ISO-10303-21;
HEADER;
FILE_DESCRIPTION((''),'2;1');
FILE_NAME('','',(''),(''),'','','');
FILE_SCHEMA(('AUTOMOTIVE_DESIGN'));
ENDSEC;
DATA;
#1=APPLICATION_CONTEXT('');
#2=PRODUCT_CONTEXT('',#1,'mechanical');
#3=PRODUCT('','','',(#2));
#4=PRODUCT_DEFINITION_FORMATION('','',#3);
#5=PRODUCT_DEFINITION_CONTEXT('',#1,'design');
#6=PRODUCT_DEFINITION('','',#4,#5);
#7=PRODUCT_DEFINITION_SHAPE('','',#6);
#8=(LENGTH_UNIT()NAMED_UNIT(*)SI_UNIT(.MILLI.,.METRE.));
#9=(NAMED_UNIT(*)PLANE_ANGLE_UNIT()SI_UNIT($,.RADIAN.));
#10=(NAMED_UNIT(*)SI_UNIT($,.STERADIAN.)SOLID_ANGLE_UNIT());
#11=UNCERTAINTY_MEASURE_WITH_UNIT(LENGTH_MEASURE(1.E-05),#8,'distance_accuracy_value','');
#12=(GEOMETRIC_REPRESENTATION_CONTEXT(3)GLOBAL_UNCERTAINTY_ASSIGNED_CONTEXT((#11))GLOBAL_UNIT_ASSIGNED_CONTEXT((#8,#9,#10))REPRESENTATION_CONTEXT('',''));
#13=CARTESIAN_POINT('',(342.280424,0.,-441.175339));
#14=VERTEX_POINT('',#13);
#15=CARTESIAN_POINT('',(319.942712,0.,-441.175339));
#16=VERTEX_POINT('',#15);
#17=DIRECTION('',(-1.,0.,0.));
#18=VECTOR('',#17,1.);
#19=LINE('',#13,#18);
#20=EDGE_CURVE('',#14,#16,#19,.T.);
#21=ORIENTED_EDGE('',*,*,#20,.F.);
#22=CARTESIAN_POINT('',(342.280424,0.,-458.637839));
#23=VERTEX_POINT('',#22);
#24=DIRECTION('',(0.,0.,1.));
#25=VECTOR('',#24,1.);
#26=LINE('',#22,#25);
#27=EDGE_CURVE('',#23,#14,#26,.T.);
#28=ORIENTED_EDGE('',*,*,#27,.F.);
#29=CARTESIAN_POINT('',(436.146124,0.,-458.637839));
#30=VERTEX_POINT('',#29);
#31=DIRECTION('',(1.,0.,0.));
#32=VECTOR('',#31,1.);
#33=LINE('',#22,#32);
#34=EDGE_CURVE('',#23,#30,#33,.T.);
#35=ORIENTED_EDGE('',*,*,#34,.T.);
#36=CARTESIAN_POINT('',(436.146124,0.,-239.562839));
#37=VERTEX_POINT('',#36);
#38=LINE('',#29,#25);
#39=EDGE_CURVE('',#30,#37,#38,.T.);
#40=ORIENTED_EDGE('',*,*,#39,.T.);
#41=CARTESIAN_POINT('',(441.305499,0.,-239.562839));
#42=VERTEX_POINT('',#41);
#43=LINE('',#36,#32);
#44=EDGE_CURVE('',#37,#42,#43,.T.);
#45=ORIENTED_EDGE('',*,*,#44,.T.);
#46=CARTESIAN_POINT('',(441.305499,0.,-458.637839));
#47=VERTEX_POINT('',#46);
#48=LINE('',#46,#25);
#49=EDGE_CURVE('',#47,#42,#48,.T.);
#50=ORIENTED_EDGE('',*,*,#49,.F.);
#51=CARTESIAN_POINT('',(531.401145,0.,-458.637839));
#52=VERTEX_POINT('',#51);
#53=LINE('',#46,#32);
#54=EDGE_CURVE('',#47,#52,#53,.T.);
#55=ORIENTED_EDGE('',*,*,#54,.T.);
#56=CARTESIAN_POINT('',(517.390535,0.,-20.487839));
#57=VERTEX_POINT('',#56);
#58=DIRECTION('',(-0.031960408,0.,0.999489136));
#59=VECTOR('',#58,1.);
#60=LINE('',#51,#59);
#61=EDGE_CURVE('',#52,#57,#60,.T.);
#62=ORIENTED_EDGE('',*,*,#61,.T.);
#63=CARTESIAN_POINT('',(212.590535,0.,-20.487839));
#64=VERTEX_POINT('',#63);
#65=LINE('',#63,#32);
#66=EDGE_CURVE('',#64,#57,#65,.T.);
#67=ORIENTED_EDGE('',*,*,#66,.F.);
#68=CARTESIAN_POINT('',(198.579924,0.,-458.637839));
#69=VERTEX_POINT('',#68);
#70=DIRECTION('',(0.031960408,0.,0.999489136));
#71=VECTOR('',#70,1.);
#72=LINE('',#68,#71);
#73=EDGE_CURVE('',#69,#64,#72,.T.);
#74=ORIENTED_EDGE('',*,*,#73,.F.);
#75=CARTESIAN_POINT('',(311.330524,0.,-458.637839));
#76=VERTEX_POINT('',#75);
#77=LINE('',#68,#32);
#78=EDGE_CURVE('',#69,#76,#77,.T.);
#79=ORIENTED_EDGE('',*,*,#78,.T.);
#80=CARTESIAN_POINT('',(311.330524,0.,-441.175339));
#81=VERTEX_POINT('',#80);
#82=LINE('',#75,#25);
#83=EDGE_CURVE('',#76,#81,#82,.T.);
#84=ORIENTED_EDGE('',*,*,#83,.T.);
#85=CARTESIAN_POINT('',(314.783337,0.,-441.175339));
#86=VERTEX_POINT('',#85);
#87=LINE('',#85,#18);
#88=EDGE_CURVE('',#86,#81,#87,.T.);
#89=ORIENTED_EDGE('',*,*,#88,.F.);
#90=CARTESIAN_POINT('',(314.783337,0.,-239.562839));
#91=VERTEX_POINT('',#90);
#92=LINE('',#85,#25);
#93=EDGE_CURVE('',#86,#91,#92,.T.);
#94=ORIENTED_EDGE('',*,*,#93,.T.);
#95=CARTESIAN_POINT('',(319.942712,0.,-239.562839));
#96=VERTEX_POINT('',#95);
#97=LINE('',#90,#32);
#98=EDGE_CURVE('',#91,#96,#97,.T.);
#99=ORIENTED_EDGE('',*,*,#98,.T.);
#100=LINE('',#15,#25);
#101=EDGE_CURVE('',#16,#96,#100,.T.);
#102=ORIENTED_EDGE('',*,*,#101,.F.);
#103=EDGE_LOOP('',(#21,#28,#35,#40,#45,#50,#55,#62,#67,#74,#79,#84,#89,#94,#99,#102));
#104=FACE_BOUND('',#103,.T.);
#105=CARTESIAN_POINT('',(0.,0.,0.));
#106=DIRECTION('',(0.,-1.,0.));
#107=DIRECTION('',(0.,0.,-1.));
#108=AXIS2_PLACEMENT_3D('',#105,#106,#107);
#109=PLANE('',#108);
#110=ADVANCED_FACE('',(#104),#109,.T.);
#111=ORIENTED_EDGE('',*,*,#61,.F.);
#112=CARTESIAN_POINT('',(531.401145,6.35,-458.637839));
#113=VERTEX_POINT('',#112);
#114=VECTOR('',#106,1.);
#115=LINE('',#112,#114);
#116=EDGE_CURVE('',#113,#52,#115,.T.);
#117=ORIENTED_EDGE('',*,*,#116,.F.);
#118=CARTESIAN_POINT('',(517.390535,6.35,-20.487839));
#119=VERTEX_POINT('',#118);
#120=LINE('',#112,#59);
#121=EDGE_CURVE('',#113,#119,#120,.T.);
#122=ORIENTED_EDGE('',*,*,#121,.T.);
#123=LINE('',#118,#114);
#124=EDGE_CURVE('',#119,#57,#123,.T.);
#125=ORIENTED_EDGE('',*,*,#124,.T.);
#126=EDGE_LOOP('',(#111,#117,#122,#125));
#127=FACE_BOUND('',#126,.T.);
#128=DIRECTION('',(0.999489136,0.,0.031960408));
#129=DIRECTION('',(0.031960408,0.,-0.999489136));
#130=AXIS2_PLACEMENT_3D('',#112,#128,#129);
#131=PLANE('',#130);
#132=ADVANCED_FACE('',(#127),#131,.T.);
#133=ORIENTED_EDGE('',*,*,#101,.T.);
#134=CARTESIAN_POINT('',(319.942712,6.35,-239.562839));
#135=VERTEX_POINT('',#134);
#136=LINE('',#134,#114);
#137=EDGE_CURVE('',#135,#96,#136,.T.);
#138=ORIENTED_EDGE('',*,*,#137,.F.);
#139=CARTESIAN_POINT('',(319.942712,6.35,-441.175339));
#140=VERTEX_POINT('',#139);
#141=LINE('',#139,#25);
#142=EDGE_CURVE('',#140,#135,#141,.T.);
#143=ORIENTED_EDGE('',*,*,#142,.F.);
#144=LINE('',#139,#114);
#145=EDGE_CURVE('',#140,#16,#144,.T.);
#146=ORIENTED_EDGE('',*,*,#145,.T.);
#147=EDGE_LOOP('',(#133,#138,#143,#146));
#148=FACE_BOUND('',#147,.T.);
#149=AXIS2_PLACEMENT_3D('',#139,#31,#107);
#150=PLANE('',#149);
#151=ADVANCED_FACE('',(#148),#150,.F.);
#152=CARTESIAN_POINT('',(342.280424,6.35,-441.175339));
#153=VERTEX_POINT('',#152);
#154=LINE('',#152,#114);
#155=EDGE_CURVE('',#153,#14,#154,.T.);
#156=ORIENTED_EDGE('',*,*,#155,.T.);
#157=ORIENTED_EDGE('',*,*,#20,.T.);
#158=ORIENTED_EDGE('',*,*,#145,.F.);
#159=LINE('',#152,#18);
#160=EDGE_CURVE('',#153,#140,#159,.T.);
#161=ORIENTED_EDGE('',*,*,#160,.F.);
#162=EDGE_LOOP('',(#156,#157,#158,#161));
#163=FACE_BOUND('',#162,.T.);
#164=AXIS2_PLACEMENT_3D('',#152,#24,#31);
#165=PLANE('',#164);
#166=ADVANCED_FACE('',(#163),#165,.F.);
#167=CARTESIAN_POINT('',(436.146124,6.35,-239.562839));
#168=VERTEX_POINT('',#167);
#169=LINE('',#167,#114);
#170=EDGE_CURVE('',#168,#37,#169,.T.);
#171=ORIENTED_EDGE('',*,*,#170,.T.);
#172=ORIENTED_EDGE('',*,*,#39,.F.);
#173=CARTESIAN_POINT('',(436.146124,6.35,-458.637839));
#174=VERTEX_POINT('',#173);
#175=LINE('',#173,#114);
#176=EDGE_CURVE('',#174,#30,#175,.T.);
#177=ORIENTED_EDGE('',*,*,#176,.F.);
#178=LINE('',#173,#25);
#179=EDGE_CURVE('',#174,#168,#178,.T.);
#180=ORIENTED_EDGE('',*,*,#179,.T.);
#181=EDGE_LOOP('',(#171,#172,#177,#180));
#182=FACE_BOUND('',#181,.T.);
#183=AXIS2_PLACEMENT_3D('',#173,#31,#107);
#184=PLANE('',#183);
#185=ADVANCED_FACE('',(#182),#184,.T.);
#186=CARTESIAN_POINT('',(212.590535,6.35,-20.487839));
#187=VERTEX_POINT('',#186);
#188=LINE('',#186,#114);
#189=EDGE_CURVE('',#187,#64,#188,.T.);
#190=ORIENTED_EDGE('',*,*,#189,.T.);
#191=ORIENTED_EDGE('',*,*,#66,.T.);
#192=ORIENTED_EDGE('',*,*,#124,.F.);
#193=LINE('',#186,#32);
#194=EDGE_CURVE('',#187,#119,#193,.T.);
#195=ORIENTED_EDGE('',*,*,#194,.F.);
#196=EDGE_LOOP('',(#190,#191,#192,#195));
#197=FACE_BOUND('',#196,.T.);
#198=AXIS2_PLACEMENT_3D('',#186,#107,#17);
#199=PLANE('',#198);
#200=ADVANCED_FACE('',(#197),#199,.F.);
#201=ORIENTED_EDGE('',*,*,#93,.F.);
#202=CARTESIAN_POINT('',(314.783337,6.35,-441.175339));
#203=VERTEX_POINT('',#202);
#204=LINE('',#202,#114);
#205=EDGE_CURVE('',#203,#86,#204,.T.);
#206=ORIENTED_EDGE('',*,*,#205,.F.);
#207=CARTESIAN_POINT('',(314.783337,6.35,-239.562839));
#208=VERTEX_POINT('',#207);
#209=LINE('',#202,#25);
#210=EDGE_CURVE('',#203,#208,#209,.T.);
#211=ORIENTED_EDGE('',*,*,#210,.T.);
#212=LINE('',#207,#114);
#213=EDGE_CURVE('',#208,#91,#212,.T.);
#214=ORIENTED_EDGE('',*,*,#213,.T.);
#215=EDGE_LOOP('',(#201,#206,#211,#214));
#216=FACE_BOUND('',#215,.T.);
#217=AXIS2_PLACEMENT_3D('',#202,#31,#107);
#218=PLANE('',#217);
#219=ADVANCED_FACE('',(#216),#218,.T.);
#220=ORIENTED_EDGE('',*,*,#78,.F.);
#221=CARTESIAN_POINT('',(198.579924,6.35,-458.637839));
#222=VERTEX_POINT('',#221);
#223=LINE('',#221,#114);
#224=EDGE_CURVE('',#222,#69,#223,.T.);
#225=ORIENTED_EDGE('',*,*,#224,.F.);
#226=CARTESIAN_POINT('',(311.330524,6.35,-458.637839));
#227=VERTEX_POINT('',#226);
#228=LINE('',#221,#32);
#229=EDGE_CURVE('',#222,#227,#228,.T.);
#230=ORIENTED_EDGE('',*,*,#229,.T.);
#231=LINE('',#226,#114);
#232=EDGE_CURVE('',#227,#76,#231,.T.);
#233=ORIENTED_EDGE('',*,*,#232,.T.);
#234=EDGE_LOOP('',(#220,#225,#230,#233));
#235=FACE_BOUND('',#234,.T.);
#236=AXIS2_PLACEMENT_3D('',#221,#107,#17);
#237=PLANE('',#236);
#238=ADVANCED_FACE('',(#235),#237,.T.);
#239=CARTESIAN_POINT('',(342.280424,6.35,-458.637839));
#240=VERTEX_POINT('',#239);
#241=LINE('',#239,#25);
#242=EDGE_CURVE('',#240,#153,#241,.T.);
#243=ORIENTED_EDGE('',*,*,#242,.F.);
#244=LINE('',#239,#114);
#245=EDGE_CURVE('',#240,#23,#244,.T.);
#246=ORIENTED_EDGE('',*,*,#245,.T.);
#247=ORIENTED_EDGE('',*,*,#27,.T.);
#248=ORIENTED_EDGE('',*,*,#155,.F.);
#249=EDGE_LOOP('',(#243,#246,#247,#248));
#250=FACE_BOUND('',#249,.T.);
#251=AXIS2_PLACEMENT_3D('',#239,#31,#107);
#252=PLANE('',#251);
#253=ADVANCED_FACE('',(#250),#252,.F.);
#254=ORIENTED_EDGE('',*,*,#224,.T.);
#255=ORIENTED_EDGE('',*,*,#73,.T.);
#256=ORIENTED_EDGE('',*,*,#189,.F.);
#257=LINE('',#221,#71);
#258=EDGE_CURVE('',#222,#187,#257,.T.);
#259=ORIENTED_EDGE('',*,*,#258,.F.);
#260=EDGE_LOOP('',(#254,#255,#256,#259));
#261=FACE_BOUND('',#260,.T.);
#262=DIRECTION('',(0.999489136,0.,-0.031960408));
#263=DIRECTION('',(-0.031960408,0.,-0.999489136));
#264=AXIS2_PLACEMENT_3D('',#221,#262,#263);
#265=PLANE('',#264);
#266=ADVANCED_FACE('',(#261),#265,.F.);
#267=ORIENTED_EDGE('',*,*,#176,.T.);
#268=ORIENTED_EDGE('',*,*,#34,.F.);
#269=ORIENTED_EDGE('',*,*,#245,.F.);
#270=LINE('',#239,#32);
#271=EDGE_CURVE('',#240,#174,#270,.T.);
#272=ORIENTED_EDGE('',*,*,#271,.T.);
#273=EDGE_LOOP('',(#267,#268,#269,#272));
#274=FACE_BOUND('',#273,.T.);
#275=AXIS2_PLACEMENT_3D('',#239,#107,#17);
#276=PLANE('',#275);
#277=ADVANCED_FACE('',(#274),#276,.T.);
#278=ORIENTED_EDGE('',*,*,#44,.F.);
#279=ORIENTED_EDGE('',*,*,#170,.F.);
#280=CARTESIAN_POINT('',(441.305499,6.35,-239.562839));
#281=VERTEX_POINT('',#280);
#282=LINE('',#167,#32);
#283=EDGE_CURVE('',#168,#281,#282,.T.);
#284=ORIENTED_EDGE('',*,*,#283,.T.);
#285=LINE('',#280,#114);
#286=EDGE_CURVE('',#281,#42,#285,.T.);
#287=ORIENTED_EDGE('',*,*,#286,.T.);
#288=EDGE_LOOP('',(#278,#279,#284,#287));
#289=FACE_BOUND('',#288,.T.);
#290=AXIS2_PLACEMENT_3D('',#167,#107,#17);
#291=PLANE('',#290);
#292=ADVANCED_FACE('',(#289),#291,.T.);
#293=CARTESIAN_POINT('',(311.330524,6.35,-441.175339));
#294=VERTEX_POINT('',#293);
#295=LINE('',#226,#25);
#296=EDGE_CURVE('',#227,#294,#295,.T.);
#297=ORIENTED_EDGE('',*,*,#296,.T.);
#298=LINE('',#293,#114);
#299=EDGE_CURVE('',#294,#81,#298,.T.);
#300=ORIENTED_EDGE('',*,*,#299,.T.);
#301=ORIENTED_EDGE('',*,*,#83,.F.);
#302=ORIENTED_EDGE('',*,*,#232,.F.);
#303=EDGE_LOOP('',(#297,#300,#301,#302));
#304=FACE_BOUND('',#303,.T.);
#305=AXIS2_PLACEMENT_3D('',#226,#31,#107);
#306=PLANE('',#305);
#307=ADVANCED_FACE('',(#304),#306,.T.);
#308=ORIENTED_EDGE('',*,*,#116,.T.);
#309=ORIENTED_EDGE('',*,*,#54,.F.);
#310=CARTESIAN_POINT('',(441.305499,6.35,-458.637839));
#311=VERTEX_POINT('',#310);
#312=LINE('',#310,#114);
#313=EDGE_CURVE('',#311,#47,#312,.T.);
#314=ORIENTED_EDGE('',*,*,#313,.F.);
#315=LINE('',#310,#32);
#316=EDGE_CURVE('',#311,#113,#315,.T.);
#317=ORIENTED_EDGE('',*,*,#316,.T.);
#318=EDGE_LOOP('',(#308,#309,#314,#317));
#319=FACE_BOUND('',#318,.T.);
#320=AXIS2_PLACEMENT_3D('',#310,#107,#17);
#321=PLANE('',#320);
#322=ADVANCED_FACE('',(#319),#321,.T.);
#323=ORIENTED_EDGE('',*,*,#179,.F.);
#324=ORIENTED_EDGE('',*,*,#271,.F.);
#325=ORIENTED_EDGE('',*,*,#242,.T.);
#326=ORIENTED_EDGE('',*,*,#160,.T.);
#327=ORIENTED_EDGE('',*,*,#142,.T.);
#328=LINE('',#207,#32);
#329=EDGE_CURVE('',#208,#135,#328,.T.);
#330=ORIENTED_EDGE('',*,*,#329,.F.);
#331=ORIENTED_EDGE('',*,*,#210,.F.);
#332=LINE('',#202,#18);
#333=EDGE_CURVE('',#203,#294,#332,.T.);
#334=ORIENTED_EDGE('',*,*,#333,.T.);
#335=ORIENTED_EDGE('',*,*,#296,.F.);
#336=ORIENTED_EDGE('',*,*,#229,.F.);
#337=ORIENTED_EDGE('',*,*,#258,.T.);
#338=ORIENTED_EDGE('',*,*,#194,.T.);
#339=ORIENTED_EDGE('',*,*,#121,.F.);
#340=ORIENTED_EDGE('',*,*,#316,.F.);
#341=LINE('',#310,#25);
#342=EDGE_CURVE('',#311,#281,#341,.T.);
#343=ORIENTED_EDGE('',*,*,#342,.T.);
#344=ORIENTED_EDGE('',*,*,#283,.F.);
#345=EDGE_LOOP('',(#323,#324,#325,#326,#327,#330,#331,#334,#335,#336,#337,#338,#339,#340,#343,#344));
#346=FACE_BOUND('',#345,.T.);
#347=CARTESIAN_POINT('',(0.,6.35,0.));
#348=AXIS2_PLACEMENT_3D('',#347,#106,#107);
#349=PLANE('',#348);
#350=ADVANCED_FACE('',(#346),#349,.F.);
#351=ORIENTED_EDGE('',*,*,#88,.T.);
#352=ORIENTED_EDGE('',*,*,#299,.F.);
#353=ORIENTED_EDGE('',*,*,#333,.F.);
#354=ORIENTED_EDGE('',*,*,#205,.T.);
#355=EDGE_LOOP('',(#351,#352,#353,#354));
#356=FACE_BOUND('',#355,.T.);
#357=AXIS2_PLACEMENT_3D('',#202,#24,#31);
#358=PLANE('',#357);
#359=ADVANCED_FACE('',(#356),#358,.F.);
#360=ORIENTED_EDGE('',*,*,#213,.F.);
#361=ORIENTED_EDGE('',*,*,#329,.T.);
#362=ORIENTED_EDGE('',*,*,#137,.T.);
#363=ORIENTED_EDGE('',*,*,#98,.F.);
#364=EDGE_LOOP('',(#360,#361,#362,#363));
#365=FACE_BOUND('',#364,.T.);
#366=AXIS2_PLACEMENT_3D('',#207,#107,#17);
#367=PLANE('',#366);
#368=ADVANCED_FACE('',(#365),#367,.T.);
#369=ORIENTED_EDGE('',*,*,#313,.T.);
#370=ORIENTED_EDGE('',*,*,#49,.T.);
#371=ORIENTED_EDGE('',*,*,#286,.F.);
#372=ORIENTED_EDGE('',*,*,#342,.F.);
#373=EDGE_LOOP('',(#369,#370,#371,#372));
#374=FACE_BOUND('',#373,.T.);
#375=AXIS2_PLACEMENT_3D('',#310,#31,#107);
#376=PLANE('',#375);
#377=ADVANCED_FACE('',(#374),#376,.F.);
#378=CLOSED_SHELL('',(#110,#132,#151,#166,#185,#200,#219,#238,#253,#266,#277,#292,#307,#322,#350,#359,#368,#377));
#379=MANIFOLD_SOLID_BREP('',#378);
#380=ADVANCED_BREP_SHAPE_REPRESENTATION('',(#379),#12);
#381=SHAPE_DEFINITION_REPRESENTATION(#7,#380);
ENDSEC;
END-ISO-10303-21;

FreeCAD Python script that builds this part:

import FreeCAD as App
import Part
import Sketcher

V = App.Vector
Q = App.Units.Quantity


def add_polygon(sketch, points):
    """Adds a closed chain of lines whose ends are joined by coincident constraints."""
    first, n = sketch.GeometryCount, len(points)
    for a, b in zip(points, points[1:] + points[:1]):
        sketch.addGeometry(Part.LineSegment(App.Vector(*a, 0), App.Vector(*b, 0)), False)
    for i in range(n):
        sketch.addConstraint(Sketcher.Constraint("Coincident", first + i, 2, first + (i + 1) % n, 1))

doc = App.newDocument("Part")
params = doc.addObject("Spreadsheet::Sheet", "Params")
for row, (alias, value) in enumerate([
    ("sketch1_width", "12 in"),
    ("sketch1_width2", "4.439 in"),
    ("sketch1_width3", "0.203125 in"),
    ("sketch1_height", "8.625 in"),
    ("sketch1_height2", "0.6875 in"),
    ("pad1_length", "0.25 in"),
], start=1):
    params.set(f"A{row}", alias)
    params.set(f"B{row}", "=" + value)
    params.setAlias(f"B{row}", alias)

body = doc.addObject("PartDesign::Body", "Body")

sketch1 = body.newObject("Sketcher::SketchObject", "Sketch")
sketch1.AttachmentSupport = (doc.getObject("XZ_Plane"), [""])
sketch1.MapMode = "FlatFace"
add_polygon(sketch1, [(311.330524, -458.637839), (198.579924, -458.637839), (212.590535, -20.487839), (517.390535, -20.487839), (531.401145, -458.637839), (441.305499, -458.637839), (441.305499, -239.562839), (436.146124, -239.562839), (436.146124, -458.637839), (342.280424, -458.637839), (342.280424, -441.175339), (319.942712, -441.175339), (319.942712, -239.562839), (314.783337, -239.562839), (314.783337, -441.175339), (311.330524, -441.175339)])
sketch1.addConstraint([
    Sketcher.Constraint("Horizontal", 0),
    Sketcher.Constraint("Horizontal", 2),
    Sketcher.Constraint("Horizontal", 4),
    Sketcher.Constraint("Vertical", 5),
    Sketcher.Constraint("Horizontal", 6),
    Sketcher.Constraint("Vertical", 7),
    Sketcher.Constraint("Horizontal", 8),
    Sketcher.Constraint("Vertical", 9),
    Sketcher.Constraint("Horizontal", 10),
    Sketcher.Constraint("Vertical", 11),
    Sketcher.Constraint("Horizontal", 12),
    Sketcher.Constraint("Vertical", 13),
    Sketcher.Constraint("Horizontal", 14),
    Sketcher.Constraint("Vertical", 15),
    Sketcher.Constraint("Horizontal", 0, 2, 3, 2),
    Sketcher.Constraint("Horizontal", 4, 2, 7, 2),
    Sketcher.Constraint("Horizontal", 6, 2, 11, 2),
    Sketcher.Constraint("Horizontal", 10, 2, 13, 2),
    Sketcher.Constraint("Equal", 6, 12),
    Sketcher.Constraint("Equal", 1, 3),
    Sketcher.Constraint("DistanceX", 2, 1, 2, 2, Q("12 in")),
    Sketcher.Constraint("DistanceX", 0, 2, 0, 1, Q("4.439 in")),
    Sketcher.Constraint("DistanceX", 6, 2, 6, 1, Q("0.203125 in")),
    Sketcher.Constraint("DistanceY", 5, 1, 5, 2, Q("8.625 in")),
    Sketcher.Constraint("DistanceY", 9, 1, 9, 2, Q("0.6875 in")),
    Sketcher.Constraint("DistanceY", 0, 2, 1, 2, Q("17.25 in")),
    Sketcher.Constraint("DistanceX", 8, 2, 8, 1, Q("3.6955 in")),
    Sketcher.Constraint("DistanceX", 0, 2, 7, 2, Q("9.353 in")),
    Sketcher.Constraint("DistanceX", -1, 1, 4, 2, 441.305499),
    Sketcher.Constraint("Distance", 1, 438.37395),
    Sketcher.Constraint("DistanceX", 10, 2, 10, 1, 22.337713),
    Sketcher.Constraint("DistanceY", 0, 2, -1, 1, 458.637839),
])
sketch1.setExpression("Constraints[36]", "Params.sketch1_width")
sketch1.setExpression("Constraints[37]", "Params.sketch1_width2")
sketch1.setExpression("Constraints[38]", "Params.sketch1_width3")
sketch1.setExpression("Constraints[39]", "Params.sketch1_height")
sketch1.setExpression("Constraints[40]", "Params.sketch1_height2")
pad1 = body.newObject("PartDesign::Pad", "Pad")
pad1.Profile = sketch1
pad1.setExpression("Length", "Params.pad1_length")
pad1.Reversed = True

doc.recompute()
